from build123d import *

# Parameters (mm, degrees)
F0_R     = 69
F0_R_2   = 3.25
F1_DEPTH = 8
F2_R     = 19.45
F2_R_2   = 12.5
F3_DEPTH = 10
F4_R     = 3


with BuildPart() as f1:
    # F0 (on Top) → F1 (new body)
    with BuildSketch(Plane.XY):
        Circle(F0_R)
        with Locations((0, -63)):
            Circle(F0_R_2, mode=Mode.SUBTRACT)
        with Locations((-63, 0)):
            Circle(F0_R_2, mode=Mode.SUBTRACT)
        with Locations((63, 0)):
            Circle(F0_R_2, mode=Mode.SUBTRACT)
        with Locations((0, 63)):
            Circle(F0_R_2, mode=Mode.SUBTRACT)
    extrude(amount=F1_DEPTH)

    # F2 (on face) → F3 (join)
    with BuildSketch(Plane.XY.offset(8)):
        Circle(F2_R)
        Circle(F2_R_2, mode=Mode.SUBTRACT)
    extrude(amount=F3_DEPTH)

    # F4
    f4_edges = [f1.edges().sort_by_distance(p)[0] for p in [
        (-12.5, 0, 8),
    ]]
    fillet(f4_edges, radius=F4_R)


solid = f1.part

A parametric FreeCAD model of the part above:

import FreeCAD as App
import Part
import Sketcher
Q = App.Units.Quantity


def edges_at(feature, points):
    """Names of the edges that pass closest to the given points."""
    edges = feature.Shape.Edges
    near = lambda p: min(range(len(edges)), key=lambda i: edges[i].distToShape(Part.Vertex(*p))[0])
    return sorted({f"Edge{near(p) + 1}" for p in points})

doc = App.newDocument("Part")
params = doc.addObject("Spreadsheet::Sheet", "Params")
for row, (alias, value) in enumerate([
    ("sketch1_diameter", "138 mm"),
    ("sketch1_diameter2", "6.5 mm"),
    ("pad1_length", "8 mm"),
    ("sketch2_diameter", "25 mm"),
    ("sketch2_diameter2", "38.9 mm"),
    ("pad2_length", "10 mm"),
    ("fillet_radius", "3 mm"),
], start=1):
    params.set(f"A{row}", alias)
    params.set(f"B{row}", "=" + value)
    params.setAlias(f"B{row}", alias)

body = doc.addObject("PartDesign::Body", "Body")

sketch1 = body.newObject("Sketcher::SketchObject", "Sketch")
sketch1.AttachmentSupport = (doc.getObject("XY_Plane"), [""])
sketch1.MapMode = "FlatFace"
sketch1.addGeometry([
    Part.Circle(App.Vector(0, 0, 0), App.Vector(0, 0, 1), 69),
    Part.Circle(App.Vector(0, -63, 0), App.Vector(0, 0, 1), 3.25),
    Part.Circle(App.Vector(-63, 0, 0), App.Vector(0, 0, 1), 3.25),
    Part.Circle(App.Vector(63, 0, 0), App.Vector(0, 0, 1), 3.25),
    Part.Circle(App.Vector(0, 63, 0), App.Vector(0, 0, 1), 3.25),
], False)
sketch1.addConstraint([
    Sketcher.Constraint("Coincident", 0, 3, -1, 1),
    Sketcher.Constraint("Equal", 1, 2),
    Sketcher.Constraint("Equal", 2, 3),
    Sketcher.Constraint("Equal", 3, 4),
    Sketcher.Constraint("Symmetric", 2, 3, 3, 3, -1, 1),
    Sketcher.Constraint("Symmetric", 1, 3, 4, 3, -1, 1),
    Sketcher.Constraint("PointOnObject", 1, 3, -2),
    Sketcher.Constraint("PointOnObject", 2, 3, -1),
    Sketcher.Constraint("Diameter", 0, Q("138 mm")),
    Sketcher.Constraint("Diameter", 1, Q("6.5 mm")),
    Sketcher.Constraint("DistanceY", 1, 3, -1, 1, Q("63 mm")),
    Sketcher.Constraint("DistanceX", 2, 3, -1, 1, Q("63 mm")),
])
sketch1.setExpression("Constraints[8]", "Params.sketch1_diameter")
sketch1.setExpression("Constraints[9]", "Params.sketch1_diameter2")
pad1 = body.newObject("PartDesign::Pad", "Pad")
pad1.Profile = sketch1
pad1.setExpression("Length", "Params.pad1_length")

sketch2 = body.newObject("Sketcher::SketchObject", "Sketch001")
sketch2.AttachmentSupport = (doc.getObject("XY_Plane"), [""])
sketch2.MapMode = "FlatFace"
sketch2.AttachmentOffset = App.Placement(App.Vector(0, 0, 8), App.Rotation())
sketch2.addGeometry([
    Part.Circle(App.Vector(0, 0, 0), App.Vector(0, 0, 1), 19.45),
    Part.Circle(App.Vector(0, 0, 0), App.Vector(0, 0, 1), 12.5),
], False)
sketch2.addConstraint([
    Sketcher.Constraint("Coincident", 0, 3, -1, 1),
    Sketcher.Constraint("Coincident", 1, 3, -1, 1),
    Sketcher.Constraint("Diameter", 1, Q("25 mm")),
    Sketcher.Constraint("Diameter", 0, Q("38.9 mm")),
])
sketch2.setExpression("Constraints[2]", "Params.sketch2_diameter")
sketch2.setExpression("Constraints[3]", "Params.sketch2_diameter2")
pad2 = body.newObject("PartDesign::Pad", "Pad001")
pad2.Profile = sketch2
pad2.setExpression("Length", "Params.pad2_length")
doc.recompute()

fillet = body.newObject("PartDesign::Fillet", "Fillet")
fillet.Base = (pad2, edges_at(pad2, [(-12.5, 0, 8)]))
fillet.setExpression("Radius", "Params.fillet_radius")

doc.recompute()
